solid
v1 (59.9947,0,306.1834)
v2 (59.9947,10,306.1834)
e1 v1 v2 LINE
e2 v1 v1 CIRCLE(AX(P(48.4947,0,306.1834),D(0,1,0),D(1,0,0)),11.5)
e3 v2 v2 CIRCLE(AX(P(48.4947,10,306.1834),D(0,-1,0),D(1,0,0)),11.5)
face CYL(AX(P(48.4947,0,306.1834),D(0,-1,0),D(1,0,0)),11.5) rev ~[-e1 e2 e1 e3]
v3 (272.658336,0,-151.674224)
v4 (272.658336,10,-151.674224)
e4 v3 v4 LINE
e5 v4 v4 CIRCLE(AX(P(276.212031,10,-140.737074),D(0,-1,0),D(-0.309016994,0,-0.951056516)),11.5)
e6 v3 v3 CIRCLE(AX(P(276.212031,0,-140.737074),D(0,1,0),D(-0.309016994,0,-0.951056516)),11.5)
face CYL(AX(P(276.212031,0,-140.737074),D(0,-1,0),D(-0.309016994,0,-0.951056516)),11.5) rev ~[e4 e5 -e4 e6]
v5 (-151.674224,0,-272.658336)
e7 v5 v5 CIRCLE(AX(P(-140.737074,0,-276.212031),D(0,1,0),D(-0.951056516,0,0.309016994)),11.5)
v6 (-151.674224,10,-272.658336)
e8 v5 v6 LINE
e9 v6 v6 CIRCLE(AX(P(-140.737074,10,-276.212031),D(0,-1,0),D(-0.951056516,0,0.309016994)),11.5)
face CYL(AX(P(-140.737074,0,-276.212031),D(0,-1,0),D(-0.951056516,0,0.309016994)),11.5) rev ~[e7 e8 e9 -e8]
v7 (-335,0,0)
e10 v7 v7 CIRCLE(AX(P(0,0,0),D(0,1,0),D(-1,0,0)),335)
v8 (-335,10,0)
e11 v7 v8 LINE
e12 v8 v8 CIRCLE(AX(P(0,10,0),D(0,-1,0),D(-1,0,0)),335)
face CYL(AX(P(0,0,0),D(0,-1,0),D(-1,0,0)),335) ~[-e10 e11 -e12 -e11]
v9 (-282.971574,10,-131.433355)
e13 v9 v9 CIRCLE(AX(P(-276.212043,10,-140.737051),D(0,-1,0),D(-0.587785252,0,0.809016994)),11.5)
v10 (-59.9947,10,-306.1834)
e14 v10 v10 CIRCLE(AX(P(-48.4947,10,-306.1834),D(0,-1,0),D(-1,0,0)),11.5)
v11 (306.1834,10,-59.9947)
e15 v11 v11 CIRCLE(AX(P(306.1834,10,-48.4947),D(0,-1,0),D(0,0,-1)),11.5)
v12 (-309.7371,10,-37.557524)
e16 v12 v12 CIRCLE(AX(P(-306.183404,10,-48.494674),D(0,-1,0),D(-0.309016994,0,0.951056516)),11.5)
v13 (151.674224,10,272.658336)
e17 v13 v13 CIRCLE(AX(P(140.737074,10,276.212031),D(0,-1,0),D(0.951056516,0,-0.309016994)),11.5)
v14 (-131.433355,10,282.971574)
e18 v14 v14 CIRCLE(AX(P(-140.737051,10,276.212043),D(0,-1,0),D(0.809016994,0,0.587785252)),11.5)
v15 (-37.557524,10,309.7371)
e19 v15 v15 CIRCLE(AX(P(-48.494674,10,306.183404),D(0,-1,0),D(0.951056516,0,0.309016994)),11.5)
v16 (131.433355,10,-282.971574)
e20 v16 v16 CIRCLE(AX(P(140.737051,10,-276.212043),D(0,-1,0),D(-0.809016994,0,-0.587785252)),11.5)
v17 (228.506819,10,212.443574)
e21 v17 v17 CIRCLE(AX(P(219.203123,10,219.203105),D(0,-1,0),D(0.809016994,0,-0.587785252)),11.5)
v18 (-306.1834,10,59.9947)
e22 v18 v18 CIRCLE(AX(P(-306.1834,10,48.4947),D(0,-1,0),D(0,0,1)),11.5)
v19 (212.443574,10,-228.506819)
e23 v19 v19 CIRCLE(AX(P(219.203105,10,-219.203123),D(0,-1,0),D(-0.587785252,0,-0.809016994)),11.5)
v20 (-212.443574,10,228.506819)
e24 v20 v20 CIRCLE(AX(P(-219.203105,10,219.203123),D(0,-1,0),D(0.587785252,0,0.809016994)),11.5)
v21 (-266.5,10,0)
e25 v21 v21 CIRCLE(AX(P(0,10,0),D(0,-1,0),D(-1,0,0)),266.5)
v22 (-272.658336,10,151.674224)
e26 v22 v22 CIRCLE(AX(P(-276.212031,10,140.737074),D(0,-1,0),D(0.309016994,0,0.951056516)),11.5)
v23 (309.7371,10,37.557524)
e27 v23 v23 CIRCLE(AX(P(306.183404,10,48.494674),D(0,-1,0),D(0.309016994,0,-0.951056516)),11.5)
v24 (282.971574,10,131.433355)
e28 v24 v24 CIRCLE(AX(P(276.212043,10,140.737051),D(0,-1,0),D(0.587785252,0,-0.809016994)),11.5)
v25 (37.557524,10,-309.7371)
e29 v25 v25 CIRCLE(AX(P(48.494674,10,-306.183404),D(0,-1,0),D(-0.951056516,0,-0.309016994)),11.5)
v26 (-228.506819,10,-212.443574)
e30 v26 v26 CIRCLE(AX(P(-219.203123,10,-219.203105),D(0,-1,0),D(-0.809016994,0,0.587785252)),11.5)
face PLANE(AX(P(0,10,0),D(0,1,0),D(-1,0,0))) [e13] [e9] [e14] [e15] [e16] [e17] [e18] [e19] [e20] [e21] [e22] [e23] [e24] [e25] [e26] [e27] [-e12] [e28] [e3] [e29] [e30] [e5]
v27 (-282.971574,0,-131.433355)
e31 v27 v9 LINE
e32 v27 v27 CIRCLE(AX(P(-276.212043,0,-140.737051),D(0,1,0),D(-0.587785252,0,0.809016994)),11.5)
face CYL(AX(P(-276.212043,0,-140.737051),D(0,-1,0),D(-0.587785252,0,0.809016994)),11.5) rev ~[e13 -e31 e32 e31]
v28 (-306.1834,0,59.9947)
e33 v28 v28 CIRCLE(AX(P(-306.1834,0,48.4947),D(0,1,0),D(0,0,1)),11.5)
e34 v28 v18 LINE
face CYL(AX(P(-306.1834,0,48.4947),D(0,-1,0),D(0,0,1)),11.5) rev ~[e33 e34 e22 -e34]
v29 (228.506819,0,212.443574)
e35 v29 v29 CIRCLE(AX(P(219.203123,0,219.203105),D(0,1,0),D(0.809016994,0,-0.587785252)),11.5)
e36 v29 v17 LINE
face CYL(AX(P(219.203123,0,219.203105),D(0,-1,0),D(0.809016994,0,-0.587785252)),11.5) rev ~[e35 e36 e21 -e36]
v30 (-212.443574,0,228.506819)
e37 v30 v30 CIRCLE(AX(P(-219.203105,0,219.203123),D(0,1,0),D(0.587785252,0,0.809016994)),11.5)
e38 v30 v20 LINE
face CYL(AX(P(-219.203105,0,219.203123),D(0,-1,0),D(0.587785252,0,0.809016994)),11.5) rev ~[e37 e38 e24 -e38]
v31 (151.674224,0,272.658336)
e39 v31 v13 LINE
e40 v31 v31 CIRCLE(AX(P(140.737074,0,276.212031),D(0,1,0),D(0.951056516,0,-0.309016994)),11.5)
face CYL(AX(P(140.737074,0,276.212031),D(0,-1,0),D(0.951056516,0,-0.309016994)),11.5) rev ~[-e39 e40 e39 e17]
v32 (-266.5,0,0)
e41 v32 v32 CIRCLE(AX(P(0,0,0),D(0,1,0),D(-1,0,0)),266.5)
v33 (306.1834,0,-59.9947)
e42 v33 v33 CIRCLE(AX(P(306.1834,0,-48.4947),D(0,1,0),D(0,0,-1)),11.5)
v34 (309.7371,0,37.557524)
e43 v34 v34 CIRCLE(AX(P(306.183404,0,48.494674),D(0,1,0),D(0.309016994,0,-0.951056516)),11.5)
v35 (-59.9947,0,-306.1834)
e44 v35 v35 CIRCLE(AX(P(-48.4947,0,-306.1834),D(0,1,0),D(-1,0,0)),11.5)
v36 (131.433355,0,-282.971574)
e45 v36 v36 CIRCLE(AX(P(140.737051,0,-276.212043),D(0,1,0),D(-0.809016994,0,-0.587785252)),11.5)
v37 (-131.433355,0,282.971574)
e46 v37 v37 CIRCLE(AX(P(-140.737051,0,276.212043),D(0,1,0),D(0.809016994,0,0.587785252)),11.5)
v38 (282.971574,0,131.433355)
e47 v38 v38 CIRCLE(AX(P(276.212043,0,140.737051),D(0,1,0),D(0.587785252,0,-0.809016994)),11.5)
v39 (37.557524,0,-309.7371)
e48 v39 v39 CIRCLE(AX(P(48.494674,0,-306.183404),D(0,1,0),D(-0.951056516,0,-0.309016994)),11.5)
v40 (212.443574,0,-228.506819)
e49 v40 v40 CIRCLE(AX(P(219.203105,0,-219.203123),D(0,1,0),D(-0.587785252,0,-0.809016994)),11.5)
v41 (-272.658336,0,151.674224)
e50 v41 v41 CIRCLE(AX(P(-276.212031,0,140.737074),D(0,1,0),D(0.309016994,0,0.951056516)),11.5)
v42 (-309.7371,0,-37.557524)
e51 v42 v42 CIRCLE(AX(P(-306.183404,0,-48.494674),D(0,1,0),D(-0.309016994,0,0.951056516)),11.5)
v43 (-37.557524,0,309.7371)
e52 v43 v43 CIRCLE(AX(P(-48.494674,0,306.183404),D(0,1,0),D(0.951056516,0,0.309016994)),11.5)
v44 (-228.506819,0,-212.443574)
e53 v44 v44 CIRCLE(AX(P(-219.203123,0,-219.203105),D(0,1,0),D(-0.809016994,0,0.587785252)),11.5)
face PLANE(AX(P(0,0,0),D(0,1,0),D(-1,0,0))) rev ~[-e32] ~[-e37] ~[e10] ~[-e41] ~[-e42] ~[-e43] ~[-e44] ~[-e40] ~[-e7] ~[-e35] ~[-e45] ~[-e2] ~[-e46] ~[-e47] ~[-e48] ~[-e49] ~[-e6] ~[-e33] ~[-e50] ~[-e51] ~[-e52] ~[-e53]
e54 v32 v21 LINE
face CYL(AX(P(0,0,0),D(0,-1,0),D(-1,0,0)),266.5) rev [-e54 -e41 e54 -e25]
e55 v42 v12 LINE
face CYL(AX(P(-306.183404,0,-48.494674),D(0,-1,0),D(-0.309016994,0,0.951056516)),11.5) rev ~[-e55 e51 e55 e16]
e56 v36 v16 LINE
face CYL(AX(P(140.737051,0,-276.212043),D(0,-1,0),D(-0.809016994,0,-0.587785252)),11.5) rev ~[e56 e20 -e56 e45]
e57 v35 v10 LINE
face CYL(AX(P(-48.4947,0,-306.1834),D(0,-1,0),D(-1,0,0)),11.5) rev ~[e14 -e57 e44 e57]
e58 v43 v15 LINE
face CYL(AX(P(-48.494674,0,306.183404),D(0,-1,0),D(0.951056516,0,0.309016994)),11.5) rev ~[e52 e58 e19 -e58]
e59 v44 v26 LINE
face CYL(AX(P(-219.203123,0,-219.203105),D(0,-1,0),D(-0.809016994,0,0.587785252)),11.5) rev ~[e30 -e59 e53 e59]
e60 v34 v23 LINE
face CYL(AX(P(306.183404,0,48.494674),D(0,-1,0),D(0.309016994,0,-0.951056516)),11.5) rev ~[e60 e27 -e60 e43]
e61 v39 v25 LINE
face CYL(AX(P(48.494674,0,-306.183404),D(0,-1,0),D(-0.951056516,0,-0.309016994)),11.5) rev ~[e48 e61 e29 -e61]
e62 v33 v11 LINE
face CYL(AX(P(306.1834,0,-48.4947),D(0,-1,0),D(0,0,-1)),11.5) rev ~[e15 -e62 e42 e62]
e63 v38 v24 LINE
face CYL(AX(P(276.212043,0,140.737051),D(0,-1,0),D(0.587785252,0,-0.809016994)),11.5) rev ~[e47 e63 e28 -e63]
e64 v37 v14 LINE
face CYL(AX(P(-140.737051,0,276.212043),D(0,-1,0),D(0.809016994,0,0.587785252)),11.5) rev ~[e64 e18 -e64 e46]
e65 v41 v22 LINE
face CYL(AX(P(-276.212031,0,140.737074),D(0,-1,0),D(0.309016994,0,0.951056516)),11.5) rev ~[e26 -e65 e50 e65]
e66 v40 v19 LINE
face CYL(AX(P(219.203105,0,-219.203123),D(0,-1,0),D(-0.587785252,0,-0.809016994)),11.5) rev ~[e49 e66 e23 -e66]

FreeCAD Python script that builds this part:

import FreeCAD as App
import Part
import Sketcher
Q = App.Units.Quantity

doc = App.newDocument("Part")
body = doc.addObject("PartDesign::Body", "Body")

# Sketch on XZ plane
sketch1 = body.newObject("Sketcher::SketchObject", "Sketch")
sketch1.AttachmentSupport = (doc.getObject("XZ_Plane"), [""])
sketch1.MapMode = "FlatFace"
sketch1.addGeometry([
    Part.Circle(App.Vector(0, 0, 0), App.Vector(0, 0, 1), 335),
    Part.Circle(App.Vector(0, 0, 0), App.Vector(0, 0, 1), 266),
], False)
sketch1.addConstraint([
    Sketcher.Constraint("Coincident", 0, 3, -1, 1),
    Sketcher.Constraint("Coincident", 1, 3, -1, 1),
    Sketcher.Constraint("Diameter", 0, Q("670 mm")),
    Sketcher.Constraint("Diameter", 1, Q("533 mm")),
])
pad1 = body.newObject("PartDesign::Pad", "Pad")
pad1.Profile = sketch1
pad1.Length = 10
pad1.Reversed = True

# Sketch on XZ plane
sketch2 = body.newObject("Sketcher::SketchObject", "Sketch001")
sketch2.AttachmentSupport = (doc.getObject("XZ_Plane"), [""])
sketch2.MapMode = "FlatFace"
sketch2.addGeometry(Part.Circle(App.Vector(48, 306, 0), App.Vector(0, 0, 1), 12), False)
sketch2.addConstraint([
    Sketcher.Constraint("Diameter", 0, Q("23 mm")),
    Sketcher.Constraint("DistanceX", -1, 1, 0, 3, Q("48.4947 mm")),
    Sketcher.Constraint("DistanceY", -1, 1, 0, 3, Q("306.1834 mm")),
])
pocket1 = body.newObject("PartDesign::Pocket", "Pocket")
pocket1.Profile = sketch2
pocket1.Length = 10
doc.recompute()

polarpattern = body.newObject("PartDesign::PolarPattern", "PolarPattern")
polarpattern.Originals = [pocket1]
polarpattern.Axis = (doc.getObject("Y_Axis"), [""])
polarpattern.Angle = 360
polarpattern.Occurrences = 20
body.Tip = polarpattern

doc.recompute()
